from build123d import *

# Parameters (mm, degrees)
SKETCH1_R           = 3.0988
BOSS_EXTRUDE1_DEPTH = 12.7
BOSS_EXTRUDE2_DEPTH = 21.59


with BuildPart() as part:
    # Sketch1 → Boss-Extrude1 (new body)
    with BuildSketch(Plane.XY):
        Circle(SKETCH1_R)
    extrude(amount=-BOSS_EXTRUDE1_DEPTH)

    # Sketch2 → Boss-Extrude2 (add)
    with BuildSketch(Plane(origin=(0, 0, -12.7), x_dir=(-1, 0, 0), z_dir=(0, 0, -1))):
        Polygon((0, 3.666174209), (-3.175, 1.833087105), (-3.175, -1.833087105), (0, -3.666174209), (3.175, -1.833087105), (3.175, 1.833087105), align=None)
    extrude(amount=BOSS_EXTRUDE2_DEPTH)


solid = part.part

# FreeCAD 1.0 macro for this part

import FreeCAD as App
import Part
import Sketcher

V = App.Vector
Q = App.Units.Quantity

doc = App.newDocument("Part")
body = doc.addObject("PartDesign::Body", "Body")

# Sketch on XY plane
sketch1 = doc.addObject("Sketcher::SketchObject", "Sketch")
body.addObject(sketch1)
sketch1.AttachmentSupport = (doc.XY_Plane, [""])
sketch1.MapMode = "FlatFace"
sketch1.addGeometry(Part.Circle(V(0, 0, 0), V(0, 0, 1), 3.1), False)
sketch1.addConstraint([
    Sketcher.Constraint("Coincident", 0, 3, -1, 1),
    Sketcher.Constraint("Diameter", 0, Q("0.244 in")),
])
pad1 = doc.addObject("PartDesign::Pad", "Pad")
body.addObject(pad1)
pad1.Profile = sketch1
pad1.Length = Q("0.5 in")
pad1.Reversed = True

# Sketch on XY plane
sketch2 = doc.addObject("Sketcher::SketchObject", "Sketch001")
body.addObject(sketch2)
sketch2.AttachmentSupport = (doc.XY_Plane, [""])
sketch2.MapMode = "FlatFace"
sketch2.AttachmentOffset = App.Placement(V(0, 0, -0.5 * 25.4), App.Rotation())
sketch2.addGeometry([
    Part.LineSegment(V(0, 3.7, 0), V(3.2, 1.8, 0)),  # 0
    Part.LineSegment(V(3.2, 1.8, 0), V(3.2, -1.8, 0)),  # 1
    Part.LineSegment(V(3.2, -1.8, 0), V(0, -3.7, 0)),  # 2
    Part.LineSegment(V(0, -3.7, 0), V(-3.2, -1.8, 0)),  # 3
    Part.LineSegment(V(-3.2, -1.8, 0), V(-3.2, 1.8, 0)),  # 4
    Part.LineSegment(V(-3.2, 1.8, 0), V(0, 3.7, 0)),  # 5
], False)
sketch2.addConstraint([
    Sketcher.Constraint("Coincident", 0, 2, 1, 1),
    Sketcher.Constraint("Coincident", 1, 2, 2, 1),
    Sketcher.Constraint("Coincident", 2, 2, 3, 1),
    Sketcher.Constraint("Coincident", 3, 2, 4, 1),
    Sketcher.Constraint("Coincident", 4, 2, 5, 1),
    Sketcher.Constraint("Coincident", 5, 2, 0, 1),
    Sketcher.Constraint("Vertical", 1),
    Sketcher.Constraint("Vertical", 4),
    Sketcher.Constraint("Symmetric", 0, 2, 3, 2, -1, 1),
    Sketcher.Constraint("Symmetric", 2, 2, 5, 2, -1, 1),
    Sketcher.Constraint("PointOnObject", 2, 2, -2),
    Sketcher.Constraint("Parallel", 2, 5),
    Sketcher.Constraint("Horizontal", 1, 2, 3, 2),
    Sketcher.Constraint("Angle", 0, Q("-30 deg")),
    Sketcher.Constraint("DistanceX", 3, 2, 1, 2, Q("0.25 in")),
    Sketcher.Constraint("DistanceY", 1, 2, 1, 1, 3.666174),
])
pad2 = doc.addObject("PartDesign::Pad", "Pad001")
body.addObject(pad2)
pad2.Profile = sketch2
pad2.Length = Q("0.85 in")
pad2.Reversed = True

doc.recompute()
